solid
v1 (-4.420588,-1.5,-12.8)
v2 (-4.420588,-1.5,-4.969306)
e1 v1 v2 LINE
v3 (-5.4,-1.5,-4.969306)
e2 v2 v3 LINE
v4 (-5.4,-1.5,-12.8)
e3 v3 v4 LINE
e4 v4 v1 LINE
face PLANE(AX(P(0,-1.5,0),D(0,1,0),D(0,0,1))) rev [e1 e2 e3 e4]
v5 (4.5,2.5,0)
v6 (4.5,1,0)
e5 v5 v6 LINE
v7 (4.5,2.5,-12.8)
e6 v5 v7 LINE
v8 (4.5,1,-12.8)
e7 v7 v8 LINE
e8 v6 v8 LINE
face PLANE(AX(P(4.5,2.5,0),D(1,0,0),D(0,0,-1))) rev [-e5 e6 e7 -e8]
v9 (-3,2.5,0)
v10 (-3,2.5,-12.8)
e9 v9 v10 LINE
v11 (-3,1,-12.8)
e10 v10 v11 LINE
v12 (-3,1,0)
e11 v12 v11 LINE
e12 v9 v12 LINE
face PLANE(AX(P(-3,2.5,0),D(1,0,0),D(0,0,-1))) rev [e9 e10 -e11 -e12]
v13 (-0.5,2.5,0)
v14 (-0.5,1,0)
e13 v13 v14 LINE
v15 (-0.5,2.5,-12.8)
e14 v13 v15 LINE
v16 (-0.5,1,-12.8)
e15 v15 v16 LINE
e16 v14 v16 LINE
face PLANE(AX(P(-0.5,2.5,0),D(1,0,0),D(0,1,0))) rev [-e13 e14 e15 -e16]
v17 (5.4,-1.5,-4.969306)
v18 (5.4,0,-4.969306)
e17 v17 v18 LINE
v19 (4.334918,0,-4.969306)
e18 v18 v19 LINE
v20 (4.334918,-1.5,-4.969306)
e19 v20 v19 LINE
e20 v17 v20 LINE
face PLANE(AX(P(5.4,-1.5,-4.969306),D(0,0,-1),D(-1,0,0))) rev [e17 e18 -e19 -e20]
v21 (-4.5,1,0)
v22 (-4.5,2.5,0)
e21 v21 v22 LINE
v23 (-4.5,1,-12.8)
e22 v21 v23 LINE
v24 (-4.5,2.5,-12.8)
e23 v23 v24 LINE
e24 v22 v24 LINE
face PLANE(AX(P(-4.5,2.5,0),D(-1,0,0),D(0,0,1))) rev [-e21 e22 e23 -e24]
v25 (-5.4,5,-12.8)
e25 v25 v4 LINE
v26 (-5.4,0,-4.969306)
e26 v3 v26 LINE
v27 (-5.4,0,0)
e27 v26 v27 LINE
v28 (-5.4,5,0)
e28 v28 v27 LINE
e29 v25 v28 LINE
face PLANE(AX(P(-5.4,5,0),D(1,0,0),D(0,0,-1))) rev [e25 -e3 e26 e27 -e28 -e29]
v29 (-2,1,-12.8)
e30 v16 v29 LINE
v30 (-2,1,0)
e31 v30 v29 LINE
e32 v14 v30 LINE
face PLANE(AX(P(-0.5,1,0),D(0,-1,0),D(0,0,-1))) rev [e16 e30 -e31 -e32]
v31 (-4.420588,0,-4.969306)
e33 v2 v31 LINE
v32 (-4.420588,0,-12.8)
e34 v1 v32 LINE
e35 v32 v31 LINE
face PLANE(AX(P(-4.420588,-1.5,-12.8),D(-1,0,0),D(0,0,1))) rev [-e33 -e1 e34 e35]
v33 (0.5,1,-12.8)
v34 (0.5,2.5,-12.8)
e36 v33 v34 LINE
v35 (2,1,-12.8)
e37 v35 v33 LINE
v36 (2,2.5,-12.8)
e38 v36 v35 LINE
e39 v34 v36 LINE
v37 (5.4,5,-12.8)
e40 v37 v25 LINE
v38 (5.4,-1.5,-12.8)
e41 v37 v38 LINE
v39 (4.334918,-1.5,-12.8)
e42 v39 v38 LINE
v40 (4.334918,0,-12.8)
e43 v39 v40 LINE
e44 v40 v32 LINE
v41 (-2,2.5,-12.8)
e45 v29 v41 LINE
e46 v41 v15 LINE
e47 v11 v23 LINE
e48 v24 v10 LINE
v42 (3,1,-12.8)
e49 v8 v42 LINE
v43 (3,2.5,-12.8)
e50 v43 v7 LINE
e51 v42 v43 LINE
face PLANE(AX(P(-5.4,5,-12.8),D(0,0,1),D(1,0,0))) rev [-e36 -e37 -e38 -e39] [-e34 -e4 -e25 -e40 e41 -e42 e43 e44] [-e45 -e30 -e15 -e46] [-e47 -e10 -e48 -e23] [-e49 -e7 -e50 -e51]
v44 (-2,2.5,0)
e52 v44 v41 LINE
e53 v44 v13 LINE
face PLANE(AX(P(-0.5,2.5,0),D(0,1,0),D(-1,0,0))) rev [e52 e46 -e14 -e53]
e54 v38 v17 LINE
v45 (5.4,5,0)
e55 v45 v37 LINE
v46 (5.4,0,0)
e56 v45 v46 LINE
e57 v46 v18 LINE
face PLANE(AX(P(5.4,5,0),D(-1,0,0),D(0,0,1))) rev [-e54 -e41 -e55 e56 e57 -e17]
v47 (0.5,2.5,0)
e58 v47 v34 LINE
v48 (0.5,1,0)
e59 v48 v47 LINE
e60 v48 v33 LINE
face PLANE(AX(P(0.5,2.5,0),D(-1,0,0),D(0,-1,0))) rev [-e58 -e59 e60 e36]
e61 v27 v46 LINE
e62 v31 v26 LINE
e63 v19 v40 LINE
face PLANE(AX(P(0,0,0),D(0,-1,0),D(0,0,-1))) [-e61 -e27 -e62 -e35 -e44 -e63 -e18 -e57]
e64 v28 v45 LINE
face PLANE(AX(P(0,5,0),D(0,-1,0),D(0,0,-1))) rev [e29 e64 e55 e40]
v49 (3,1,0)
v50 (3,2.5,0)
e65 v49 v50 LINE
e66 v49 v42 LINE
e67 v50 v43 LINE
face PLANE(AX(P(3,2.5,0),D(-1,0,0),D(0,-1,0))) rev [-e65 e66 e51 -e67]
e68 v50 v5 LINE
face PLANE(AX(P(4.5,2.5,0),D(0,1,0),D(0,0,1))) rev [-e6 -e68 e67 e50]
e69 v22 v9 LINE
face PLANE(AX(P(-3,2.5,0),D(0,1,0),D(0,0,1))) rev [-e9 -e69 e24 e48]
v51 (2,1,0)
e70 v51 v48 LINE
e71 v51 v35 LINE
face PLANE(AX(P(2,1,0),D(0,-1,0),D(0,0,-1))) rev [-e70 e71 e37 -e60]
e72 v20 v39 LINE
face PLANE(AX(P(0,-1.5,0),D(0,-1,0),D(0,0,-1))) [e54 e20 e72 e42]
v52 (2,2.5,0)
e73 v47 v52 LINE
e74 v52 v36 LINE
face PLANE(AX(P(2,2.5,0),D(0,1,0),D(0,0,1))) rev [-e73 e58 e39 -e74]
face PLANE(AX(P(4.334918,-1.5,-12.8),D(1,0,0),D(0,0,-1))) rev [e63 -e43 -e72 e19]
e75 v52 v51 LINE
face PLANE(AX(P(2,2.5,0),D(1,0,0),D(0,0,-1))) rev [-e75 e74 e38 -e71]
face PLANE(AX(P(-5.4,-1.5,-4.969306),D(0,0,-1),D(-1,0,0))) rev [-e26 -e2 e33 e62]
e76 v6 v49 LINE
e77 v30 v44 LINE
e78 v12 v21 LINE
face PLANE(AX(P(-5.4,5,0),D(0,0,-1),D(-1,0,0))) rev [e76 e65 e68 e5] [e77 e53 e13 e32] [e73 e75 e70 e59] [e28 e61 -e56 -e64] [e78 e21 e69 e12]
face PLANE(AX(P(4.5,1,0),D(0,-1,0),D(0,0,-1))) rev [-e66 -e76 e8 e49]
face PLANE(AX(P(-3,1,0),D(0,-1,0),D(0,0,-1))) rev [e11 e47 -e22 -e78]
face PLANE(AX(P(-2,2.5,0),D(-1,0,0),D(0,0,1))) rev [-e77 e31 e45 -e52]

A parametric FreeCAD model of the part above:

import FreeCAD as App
import Part
import Sketcher

V = App.Vector


def add_polygon(sketch, points):
    """Adds a closed chain of lines whose ends are joined by coincident constraints."""
    first, n = sketch.GeometryCount, len(points)
    for a, b in zip(points, points[1:] + points[:1]):
        sketch.addGeometry(Part.LineSegment(App.Vector(*a, 0), App.Vector(*b, 0)), False)
    for i in range(n):
        sketch.addConstraint(Sketcher.Constraint("Coincident", first + i, 2, first + (i + 1) % n, 1))

doc = App.newDocument("Part")
body = doc.addObject("PartDesign::Body", "Body")

# Sketch on XZ plane
sketch1 = body.newObject("Sketcher::SketchObject", "Sketch")
sketch1.AttachmentSupport = (doc.getObject("XZ_Plane"), [""])
sketch1.MapMode = "FlatFace"
add_polygon(sketch1, [(-5, -13), (-5, 0), (5, 0), (5, -13)])  # lines 0-3
sketch1.addConstraint([
    Sketcher.Constraint("Vertical", 0),
    Sketcher.Constraint("Horizontal", 1),
    Sketcher.Constraint("Vertical", 2),
    Sketcher.Constraint("Horizontal", 3),
    Sketcher.Constraint("Symmetric", 0, 2, 1, 2, -1, 1),
    Sketcher.Constraint("DistanceX", 1, 1, 1, 2, 10.8),
    Sketcher.Constraint("DistanceY", 0, 1, 0, 2, 12.8),
])
pad1 = body.newObject("PartDesign::Pad", "Pad")
pad1.Profile = sketch1
pad1.Length = 5
pad1.Reversed = True

# Sketch on XY plane
sketch2 = body.newObject("Sketcher::SketchObject", "Sketch001")
sketch2.AttachmentSupport = (doc.getObject("XY_Plane"), [""])
sketch2.MapMode = "FlatFace"
sketch2.AttachmentOffset = App.Placement(V(0, 0, -12.8), App.Rotation())
add_polygon(sketch2, [(4.5, 2.5), (4.5, 1), (3, 1), (3, 2.5)])  # lines 0-3
add_polygon(sketch2, [(2, 2.5), (2, 1), (0.5, 1), (0.5, 2.5)])  # lines 4-7
add_polygon(sketch2, [(-0.5, 2.5), (-0.5, 1), (-2, 1), (-2, 2.5)])  # lines 8-11
add_polygon(sketch2, [(-3, 2.5), (-3, 1), (-4.5, 1), (-4.5, 2.5)])  # lines 12-15
sketch2.addConstraint([
    Sketcher.Constraint("Vertical", 0),
    Sketcher.Constraint("Horizontal", 1),
    Sketcher.Constraint("Vertical", 2),
    Sketcher.Constraint("Horizontal", 3),
    Sketcher.Constraint("Vertical", 4),
    Sketcher.Constraint("Horizontal", 5),
    Sketcher.Constraint("Vertical", 6),
    Sketcher.Constraint("Horizontal", 7),
    Sketcher.Constraint("Vertical", 8),
    Sketcher.Constraint("Horizontal", 9),
    Sketcher.Constraint("Vertical", 10),
    Sketcher.Constraint("Horizontal", 11),
    Sketcher.Constraint("Vertical", 12),
    Sketcher.Constraint("Horizontal", 13),
    Sketcher.Constraint("Vertical", 14),
    Sketcher.Constraint("Horizontal", 15),
    Sketcher.Constraint("Symmetric", 5, 2, 8, 2, -2),
    Sketcher.Constraint("Symmetric", 7, 2, 10, 2, -2),
    Sketcher.Constraint("Symmetric", 1, 2, 12, 2, -2),
    Sketcher.Constraint("Symmetric", 3, 2, 14, 2, -2),
    Sketcher.Constraint("Horizontal", 1, 2, 4, 2),
    Sketcher.Constraint("Horizontal", 3, 2, 6, 2),
    Sketcher.Constraint("Equal", 3, 5),
    Sketcher.Constraint("Equal", 15, 0),
    Sketcher.Constraint("DistanceX", 1, 2, 1, 1, 1.5),
    Sketcher.Constraint("DistanceY", -1, 1, 0, 2, 1.0),
    Sketcher.Constraint("DistanceX", -1, 1, 1, 2, 3.0),
    Sketcher.Constraint("DistanceX", -1, 1, 4, 2, 2.0),
])
pocket1 = body.newObject("PartDesign::Pocket", "Pocket")
pocket1.Profile = sketch2
pocket1.Type = "ThroughAll"
pocket1.Reversed = True

# Sketch on XZ plane
sketch3 = body.newObject("Sketcher::SketchObject", "Sketch002")
sketch3.AttachmentSupport = (doc.getObject("XZ_Plane"), [""])
sketch3.MapMode = "FlatFace"
add_polygon(sketch3, [(-5.4, -5), (-5.4, -12.8), (-4.4, -12.8), (-4.4, -5)])  # lines 0-3
add_polygon(sketch3, [(4.3, -5), (4.3, -12.8), (5.4, -12.8), (5.4, -5)])  # lines 4-7
sketch3.addConstraint([
    Sketcher.Constraint("Vertical", 0),
    Sketcher.Constraint("Horizontal", 1),
    Sketcher.Constraint("Vertical", 2),
    Sketcher.Constraint("Horizontal", 3),
    Sketcher.Constraint("Vertical", 4),
    Sketcher.Constraint("Horizontal", 5),
    Sketcher.Constraint("Vertical", 6),
    Sketcher.Constraint("Horizontal", 7),
    Sketcher.Constraint("Symmetric", 0, 2, 5, 2, -2),
    Sketcher.Constraint("Horizontal", 3, 2, 6, 2),
    Sketcher.Constraint("DistanceX", 0, 2, -1, 1, 5.4),
    Sketcher.Constraint("DistanceY", 0, 2, -1, 1, 12.8),
    Sketcher.Constraint("DistanceX", 1, 1, 1, 2, 0.979412),
    Sketcher.Constraint("DistanceX", 5, 1, 5, 2, 1.065082),
    Sketcher.Constraint("DistanceY", 0, 2, 0, 1, 7.830694),
])
pad2 = body.newObject("PartDesign::Pad", "Pad001")
pad2.Profile = sketch3
pad2.Length = 1.5

doc.recompute()
